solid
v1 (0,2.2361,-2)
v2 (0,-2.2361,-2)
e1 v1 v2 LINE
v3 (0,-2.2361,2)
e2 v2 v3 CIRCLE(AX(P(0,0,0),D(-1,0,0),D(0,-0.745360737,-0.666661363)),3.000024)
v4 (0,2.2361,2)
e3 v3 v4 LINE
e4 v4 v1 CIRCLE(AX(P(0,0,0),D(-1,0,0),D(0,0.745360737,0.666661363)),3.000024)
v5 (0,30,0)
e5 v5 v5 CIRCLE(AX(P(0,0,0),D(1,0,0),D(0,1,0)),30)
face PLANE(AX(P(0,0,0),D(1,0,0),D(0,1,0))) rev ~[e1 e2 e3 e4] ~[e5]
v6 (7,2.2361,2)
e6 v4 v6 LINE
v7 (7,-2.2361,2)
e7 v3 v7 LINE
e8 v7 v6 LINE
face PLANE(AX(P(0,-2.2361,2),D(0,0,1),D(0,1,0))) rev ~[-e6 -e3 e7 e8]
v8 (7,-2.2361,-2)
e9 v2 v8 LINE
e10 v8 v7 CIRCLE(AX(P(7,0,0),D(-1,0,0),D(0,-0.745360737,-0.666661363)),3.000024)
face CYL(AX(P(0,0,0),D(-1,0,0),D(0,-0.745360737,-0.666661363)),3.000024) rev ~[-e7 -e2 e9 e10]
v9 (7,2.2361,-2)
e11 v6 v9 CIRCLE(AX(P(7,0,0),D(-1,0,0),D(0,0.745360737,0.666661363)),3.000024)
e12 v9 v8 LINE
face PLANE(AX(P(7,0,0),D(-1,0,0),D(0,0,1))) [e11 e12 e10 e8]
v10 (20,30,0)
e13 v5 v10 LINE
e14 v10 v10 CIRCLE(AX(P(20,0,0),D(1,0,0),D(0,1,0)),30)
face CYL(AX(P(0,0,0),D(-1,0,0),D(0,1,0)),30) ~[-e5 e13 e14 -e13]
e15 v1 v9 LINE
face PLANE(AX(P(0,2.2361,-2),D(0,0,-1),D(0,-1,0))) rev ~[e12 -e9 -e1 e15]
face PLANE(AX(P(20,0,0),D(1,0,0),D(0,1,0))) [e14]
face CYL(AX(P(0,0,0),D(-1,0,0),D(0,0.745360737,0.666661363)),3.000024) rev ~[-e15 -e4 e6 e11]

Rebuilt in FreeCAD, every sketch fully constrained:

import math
import FreeCAD as App
import Part
import Sketcher

V = App.Vector

doc = App.newDocument("Part")
body = doc.addObject("PartDesign::Body", "Body")

# Sketch on YZ plane
sketch1 = doc.addObject("Sketcher::SketchObject", "Sketch")
body.addObject(sketch1)
sketch1.AttachmentSupport = (doc.YZ_Plane, [""])
sketch1.MapMode = "FlatFace"
sketch1.addGeometry(Part.Circle(V(0, 0, 0), V(0, 0, 1), 30), False)
sketch1.addConstraint(Sketcher.Constraint("Coincident", 0, 3, -1, 1))
sketch1.addConstraint(Sketcher.Constraint("Diameter", 0, 60.0))
pad1 = doc.addObject("PartDesign::Pad", "Pad")
body.addObject(pad1)
pad1.Profile = sketch1
pad1.Length = 20

# Sketch on YZ plane
sketch2 = doc.addObject("Sketcher::SketchObject", "Sketch001")
body.addObject(sketch2)
sketch2.AttachmentSupport = (doc.YZ_Plane, [""])
sketch2.MapMode = "FlatFace"
sketch2.addGeometry(Part.ArcOfCircle(Part.Circle(V(0, 0, 0), V(0, 0, 1), 3.000024), math.radians(138.190093), math.radians(221.809907)), False)
sketch2.addGeometry(Part.LineSegment(V(-2.2361, 2, 0), V(2.2361, 2, 0)), False)
sketch2.addGeometry(Part.ArcOfCircle(Part.Circle(V(0, 0, 0), V(0, 0, 1), 3.000024), math.radians(-41.809907), math.radians(41.809907)), False)
sketch2.addGeometry(Part.LineSegment(V(2.2361, -2, 0), V(-2.2361, -2, 0)), False)
sketch2.addConstraint(Sketcher.Constraint("Coincident", 0, 1, 1, 1))
sketch2.addConstraint(Sketcher.Constraint("Coincident", 1, 2, 2, 2))
sketch2.addConstraint(Sketcher.Constraint("Coincident", 2, 1, 3, 1))
sketch2.addConstraint(Sketcher.Constraint("Coincident", 3, 2, 0, 2))
sketch2.addConstraint(Sketcher.Constraint("Horizontal", 1))
sketch2.addConstraint(Sketcher.Constraint("Horizontal", 3))
sketch2.addConstraint(Sketcher.Constraint("Coincident", 0, 3, -1, 1))
sketch2.addConstraint(Sketcher.Constraint("Coincident", 2, 3, -1, 1))
sketch2.addConstraint(Sketcher.Constraint("Equal", 0, 2))
sketch2.addConstraint(Sketcher.Constraint("Vertical", 1, 2, 2, 1))
sketch2.addConstraint(Sketcher.Constraint("Radius", 0, 3.0))
sketch2.addConstraint(Sketcher.Constraint("DistanceY", 2, 1, 1, 2, 4.0))
pocket1 = doc.addObject("PartDesign::Pocket", "Pocket")
body.addObject(pocket1)
pocket1.Profile = sketch2
pocket1.Length = 7
pocket1.Reversed = True

doc.recompute()
